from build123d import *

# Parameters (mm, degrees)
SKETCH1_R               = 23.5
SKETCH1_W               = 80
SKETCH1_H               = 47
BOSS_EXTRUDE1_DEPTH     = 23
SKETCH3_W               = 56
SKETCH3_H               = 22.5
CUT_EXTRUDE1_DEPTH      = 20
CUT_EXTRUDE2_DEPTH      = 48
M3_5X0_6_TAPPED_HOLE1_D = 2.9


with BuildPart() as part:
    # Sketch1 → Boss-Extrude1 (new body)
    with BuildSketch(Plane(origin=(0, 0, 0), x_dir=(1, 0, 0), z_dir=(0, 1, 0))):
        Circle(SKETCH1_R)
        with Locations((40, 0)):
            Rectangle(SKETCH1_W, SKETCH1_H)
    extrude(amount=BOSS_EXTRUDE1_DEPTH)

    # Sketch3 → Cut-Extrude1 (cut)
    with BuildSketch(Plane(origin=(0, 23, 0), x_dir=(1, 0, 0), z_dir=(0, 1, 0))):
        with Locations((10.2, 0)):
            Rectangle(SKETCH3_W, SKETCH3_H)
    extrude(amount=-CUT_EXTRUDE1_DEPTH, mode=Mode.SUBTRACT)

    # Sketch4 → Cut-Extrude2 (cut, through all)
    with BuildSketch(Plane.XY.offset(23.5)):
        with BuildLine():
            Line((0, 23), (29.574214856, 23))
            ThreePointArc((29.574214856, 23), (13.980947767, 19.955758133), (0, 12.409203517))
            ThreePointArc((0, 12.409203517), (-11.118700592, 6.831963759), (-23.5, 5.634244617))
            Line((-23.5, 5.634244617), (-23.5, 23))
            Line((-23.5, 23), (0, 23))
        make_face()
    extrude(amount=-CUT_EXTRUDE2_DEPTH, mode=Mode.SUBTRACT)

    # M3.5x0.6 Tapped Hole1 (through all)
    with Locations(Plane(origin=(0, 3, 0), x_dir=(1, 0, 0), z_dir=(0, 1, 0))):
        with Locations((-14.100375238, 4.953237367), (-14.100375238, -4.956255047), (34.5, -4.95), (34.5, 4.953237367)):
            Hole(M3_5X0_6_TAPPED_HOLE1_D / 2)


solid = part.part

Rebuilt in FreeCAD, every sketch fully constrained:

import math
import FreeCAD as App
import Part
import Sketcher
Q = App.Units.Quantity

doc = App.newDocument("Part")
body = doc.addObject("PartDesign::Body", "Body")

# Sketch on XZ plane
sketch1 = body.newObject("Sketcher::SketchObject", "Sketch")
sketch1.AttachmentSupport = (doc.getObject("XZ_Plane"), [""])
sketch1.MapMode = "FlatFace"
sketch1.addGeometry(Part.LineSegment(App.Vector(0, 23.5, 0), App.Vector(80, 23.5, 0)), False)
sketch1.addGeometry(Part.LineSegment(App.Vector(80, 23.5, 0), App.Vector(80, -23.5, 0)), False)
sketch1.addGeometry(Part.LineSegment(App.Vector(80, -23.5, 0), App.Vector(0, -23.5, 0)), False)
sketch1.addGeometry(Part.ArcOfCircle(Part.Circle(App.Vector(0, 0, 0), App.Vector(0, 0, 1), 23.5), math.radians(90), math.radians(270)), False)
sketch1.addConstraint(Sketcher.Constraint("Coincident", 0, 2, 1, 1))
sketch1.addConstraint(Sketcher.Constraint("Coincident", 1, 2, 2, 1))
sketch1.addConstraint(Sketcher.Constraint("Tangent", 2, 2, 3, 2))
sketch1.addConstraint(Sketcher.Constraint("Tangent", 3, 1, 0, 1))
sketch1.addConstraint(Sketcher.Constraint("Horizontal", 0))
sketch1.addConstraint(Sketcher.Constraint("Vertical", 1))
sketch1.addConstraint(Sketcher.Constraint("Horizontal", 2))
sketch1.addConstraint(Sketcher.Constraint("Coincident", 3, 3, -1, 1))
sketch1.addConstraint(Sketcher.Constraint("Radius", 3, Q("23.5 mm")))
sketch1.addConstraint(Sketcher.Constraint("DistanceX", 0, 1, 0, 2, Q("80 mm")))
pad1 = body.newObject("PartDesign::Pad", "Pad")
pad1.Profile = sketch1
pad1.Length = 23
pad1.Reversed = True

# Sketch on XZ plane
sketch2 = body.newObject("Sketcher::SketchObject", "Sketch001")
sketch2.AttachmentSupport = (doc.getObject("XZ_Plane"), [""])
sketch2.MapMode = "FlatFace"
sketch2.AttachmentOffset = App.Placement(App.Vector(0, 0, -23), App.Rotation())
sketch2.addGeometry(Part.LineSegment(App.Vector(-17.8, -11.25, 0), App.Vector(-17.8, 11.25, 0)), False)
sketch2.addGeometry(Part.LineSegment(App.Vector(-17.8, 11.25, 0), App.Vector(38.2, 11.25, 0)), False)
sketch2.addGeometry(Part.LineSegment(App.Vector(38.2, 11.25, 0), App.Vector(38.2, -11.25, 0)), False)
sketch2.addGeometry(Part.LineSegment(App.Vector(38.2, -11.25, 0), App.Vector(-17.8, -11.25, 0)), False)
sketch2.addConstraint(Sketcher.Constraint("Coincident", 0, 2, 1, 1))
sketch2.addConstraint(Sketcher.Constraint("Coincident", 1, 2, 2, 1))
sketch2.addConstraint(Sketcher.Constraint("Coincident", 2, 2, 3, 1))
sketch2.addConstraint(Sketcher.Constraint("Coincident", 3, 2, 0, 1))
sketch2.addConstraint(Sketcher.Constraint("Vertical", 0))
sketch2.addConstraint(Sketcher.Constraint("Horizontal", 1))
sketch2.addConstraint(Sketcher.Constraint("Vertical", 2))
sketch2.addConstraint(Sketcher.Constraint("Horizontal", 3))
sketch2.addConstraint(Sketcher.Constraint("DistanceX", 1, 1, 1, 2, Q("56 mm")))
sketch2.addConstraint(Sketcher.Constraint("DistanceY", 0, 1, 0, 2, Q("22.5 mm")))
sketch2.addConstraint(Sketcher.Constraint("DistanceX", 0, 2, -1, 1, Q("17.8 mm")))
sketch2.addConstraint(Sketcher.Constraint("DistanceY", -1, 1, 0, 2, Q("11.25 mm")))
pocket1 = body.newObject("PartDesign::Pocket", "Pocket")
pocket1.Profile = sketch2
pocket1.Length = 20
pocket1.Reversed = True

# Sketch on XY plane
sketch3 = body.newObject("Sketcher::SketchObject", "Sketch002")
sketch3.AttachmentSupport = (doc.getObject("XY_Plane"), [""])
sketch3.MapMode = "FlatFace"
sketch3.AttachmentOffset = App.Placement(App.Vector(0, 0, 23.5), App.Rotation())
sketch3.addGeometry(Part.ArcOfCircle(Part.Circle(App.Vector(31.775894, -29.735648, 0), App.Vector(0, 0, 1), 52.781587), math.radians(92.390674), math.radians(127.015146)), False)
sketch3.addGeometry(Part.LineSegment(App.Vector(29.574215, 23, 0), App.Vector(-23.5, 23, 0)), False)
sketch3.addGeometry(Part.LineSegment(App.Vector(-23.5, 23, 0), App.Vector(-23.5, 5.634245, 0)), False)
sketch3.addGeometry(Part.ArcOfCircle(Part.Circle(App.Vector(-20.522761, 39.451413, 0), App.Vector(0, 0, 1), 33.947972), math.radians(-95.031306), math.radians(-52.804561)), False)
sketch3.addConstraint(Sketcher.Constraint("Coincident", 0, 1, 1, 1))
sketch3.addConstraint(Sketcher.Constraint("Coincident", 1, 2, 2, 1))
sketch3.addConstraint(Sketcher.Constraint("Coincident", 2, 2, 3, 1))
sketch3.addConstraint(Sketcher.Constraint("Coincident", 3, 2, 0, 2))
sketch3.addConstraint(Sketcher.Constraint("Horizontal", 1))
sketch3.addConstraint(Sketcher.Constraint("Vertical", 2))
sketch3.addConstraint(Sketcher.Constraint("PointOnObject", 3, 2, -2))
sketch3.addConstraint(Sketcher.Constraint("DistanceY", -1, 1, 0, 1, Q("23 mm")))
sketch3.addConstraint(Sketcher.Constraint("DistanceX", 1, 2, -1, 1, Q("23.5 mm")))
sketch3.addConstraint(Sketcher.Constraint("Radius", 0, Q("52.781587 mm")))
sketch3.addConstraint(Sketcher.Constraint("Radius", 3, Q("33.947972 mm")))
sketch3.addConstraint(Sketcher.Constraint("DistanceX", 1, 2, 1, 1, Q("53.074215 mm")))
sketch3.addConstraint(Sketcher.Constraint("DistanceY", 2, 2, 2, 1, Q("17.365755 mm")))
sketch3.addConstraint(Sketcher.Constraint("DistanceX", 3, 3, -1, 1, Q("20.522761 mm")))
pocket2 = body.newObject("PartDesign::Pocket", "Pocket001")
pocket2.Profile = sketch3
pocket2.Type = "ThroughAll"

# Sketch on XZ plane
sketch4 = body.newObject("Sketcher::SketchObject", "Sketch003")
sketch4.AttachmentSupport = (doc.getObject("XZ_Plane"), [""])
sketch4.MapMode = "FlatFace"
sketch4.AttachmentOffset = App.Placement(App.Vector(0, 0, -3), App.Rotation())
sketch4.addGeometry(Part.Circle(App.Vector(-14.100375, -4.953237, 0), App.Vector(0, 0, 1), 1.45), False)
sketch4.addGeometry(Part.Circle(App.Vector(-14.100375, 4.956255, 0), App.Vector(0, 0, 1), 1.45), False)
sketch4.addGeometry(Part.Circle(App.Vector(34.5, 4.95, 0), App.Vector(0, 0, 1), 1.45), False)
sketch4.addGeometry(Part.Circle(App.Vector(34.5, -4.953237, 0), App.Vector(0, 0, 1), 1.45), False)
sketch4.addConstraint(Sketcher.Constraint("Equal", 0, 1))
sketch4.addConstraint(Sketcher.Constraint("Equal", 1, 2))
sketch4.addConstraint(Sketcher.Constraint("Equal", 2, 3))
sketch4.addConstraint(Sketcher.Constraint("Horizontal", 0, 3, 3, 3))
sketch4.addConstraint(Sketcher.Constraint("Vertical", 0, 3, 1, 3))
sketch4.addConstraint(Sketcher.Constraint("Vertical", 2, 3, 3, 3))
sketch4.addConstraint(Sketcher.Constraint("Diameter", 0, Q("2.9 mm")))
sketch4.addConstraint(Sketcher.Constraint("DistanceX", -1, 1, 2, 3, Q("34.5 mm")))
sketch4.addConstraint(Sketcher.Constraint("DistanceY", -1, 1, 2, 3, Q("4.95 mm")))
sketch4.addConstraint(Sketcher.Constraint("DistanceX", 0, 3, -1, 1, Q("14.100375 mm")))
sketch4.addConstraint(Sketcher.Constraint("DistanceY", 0, 3, -1, 1, Q("4.953237 mm")))
sketch4.addConstraint(Sketcher.Constraint("DistanceY", -1, 1, 1, 3, Q("4.956255 mm")))
doc.recompute()
hole = body.newObject("PartDesign::Hole", "Hole")
hole.Profile = sketch4
hole.ThreadType = "None"
hole.Diameter = 2.9
hole.DepthType = "ThroughAll"
hole.Reversed = True

doc.recompute()
